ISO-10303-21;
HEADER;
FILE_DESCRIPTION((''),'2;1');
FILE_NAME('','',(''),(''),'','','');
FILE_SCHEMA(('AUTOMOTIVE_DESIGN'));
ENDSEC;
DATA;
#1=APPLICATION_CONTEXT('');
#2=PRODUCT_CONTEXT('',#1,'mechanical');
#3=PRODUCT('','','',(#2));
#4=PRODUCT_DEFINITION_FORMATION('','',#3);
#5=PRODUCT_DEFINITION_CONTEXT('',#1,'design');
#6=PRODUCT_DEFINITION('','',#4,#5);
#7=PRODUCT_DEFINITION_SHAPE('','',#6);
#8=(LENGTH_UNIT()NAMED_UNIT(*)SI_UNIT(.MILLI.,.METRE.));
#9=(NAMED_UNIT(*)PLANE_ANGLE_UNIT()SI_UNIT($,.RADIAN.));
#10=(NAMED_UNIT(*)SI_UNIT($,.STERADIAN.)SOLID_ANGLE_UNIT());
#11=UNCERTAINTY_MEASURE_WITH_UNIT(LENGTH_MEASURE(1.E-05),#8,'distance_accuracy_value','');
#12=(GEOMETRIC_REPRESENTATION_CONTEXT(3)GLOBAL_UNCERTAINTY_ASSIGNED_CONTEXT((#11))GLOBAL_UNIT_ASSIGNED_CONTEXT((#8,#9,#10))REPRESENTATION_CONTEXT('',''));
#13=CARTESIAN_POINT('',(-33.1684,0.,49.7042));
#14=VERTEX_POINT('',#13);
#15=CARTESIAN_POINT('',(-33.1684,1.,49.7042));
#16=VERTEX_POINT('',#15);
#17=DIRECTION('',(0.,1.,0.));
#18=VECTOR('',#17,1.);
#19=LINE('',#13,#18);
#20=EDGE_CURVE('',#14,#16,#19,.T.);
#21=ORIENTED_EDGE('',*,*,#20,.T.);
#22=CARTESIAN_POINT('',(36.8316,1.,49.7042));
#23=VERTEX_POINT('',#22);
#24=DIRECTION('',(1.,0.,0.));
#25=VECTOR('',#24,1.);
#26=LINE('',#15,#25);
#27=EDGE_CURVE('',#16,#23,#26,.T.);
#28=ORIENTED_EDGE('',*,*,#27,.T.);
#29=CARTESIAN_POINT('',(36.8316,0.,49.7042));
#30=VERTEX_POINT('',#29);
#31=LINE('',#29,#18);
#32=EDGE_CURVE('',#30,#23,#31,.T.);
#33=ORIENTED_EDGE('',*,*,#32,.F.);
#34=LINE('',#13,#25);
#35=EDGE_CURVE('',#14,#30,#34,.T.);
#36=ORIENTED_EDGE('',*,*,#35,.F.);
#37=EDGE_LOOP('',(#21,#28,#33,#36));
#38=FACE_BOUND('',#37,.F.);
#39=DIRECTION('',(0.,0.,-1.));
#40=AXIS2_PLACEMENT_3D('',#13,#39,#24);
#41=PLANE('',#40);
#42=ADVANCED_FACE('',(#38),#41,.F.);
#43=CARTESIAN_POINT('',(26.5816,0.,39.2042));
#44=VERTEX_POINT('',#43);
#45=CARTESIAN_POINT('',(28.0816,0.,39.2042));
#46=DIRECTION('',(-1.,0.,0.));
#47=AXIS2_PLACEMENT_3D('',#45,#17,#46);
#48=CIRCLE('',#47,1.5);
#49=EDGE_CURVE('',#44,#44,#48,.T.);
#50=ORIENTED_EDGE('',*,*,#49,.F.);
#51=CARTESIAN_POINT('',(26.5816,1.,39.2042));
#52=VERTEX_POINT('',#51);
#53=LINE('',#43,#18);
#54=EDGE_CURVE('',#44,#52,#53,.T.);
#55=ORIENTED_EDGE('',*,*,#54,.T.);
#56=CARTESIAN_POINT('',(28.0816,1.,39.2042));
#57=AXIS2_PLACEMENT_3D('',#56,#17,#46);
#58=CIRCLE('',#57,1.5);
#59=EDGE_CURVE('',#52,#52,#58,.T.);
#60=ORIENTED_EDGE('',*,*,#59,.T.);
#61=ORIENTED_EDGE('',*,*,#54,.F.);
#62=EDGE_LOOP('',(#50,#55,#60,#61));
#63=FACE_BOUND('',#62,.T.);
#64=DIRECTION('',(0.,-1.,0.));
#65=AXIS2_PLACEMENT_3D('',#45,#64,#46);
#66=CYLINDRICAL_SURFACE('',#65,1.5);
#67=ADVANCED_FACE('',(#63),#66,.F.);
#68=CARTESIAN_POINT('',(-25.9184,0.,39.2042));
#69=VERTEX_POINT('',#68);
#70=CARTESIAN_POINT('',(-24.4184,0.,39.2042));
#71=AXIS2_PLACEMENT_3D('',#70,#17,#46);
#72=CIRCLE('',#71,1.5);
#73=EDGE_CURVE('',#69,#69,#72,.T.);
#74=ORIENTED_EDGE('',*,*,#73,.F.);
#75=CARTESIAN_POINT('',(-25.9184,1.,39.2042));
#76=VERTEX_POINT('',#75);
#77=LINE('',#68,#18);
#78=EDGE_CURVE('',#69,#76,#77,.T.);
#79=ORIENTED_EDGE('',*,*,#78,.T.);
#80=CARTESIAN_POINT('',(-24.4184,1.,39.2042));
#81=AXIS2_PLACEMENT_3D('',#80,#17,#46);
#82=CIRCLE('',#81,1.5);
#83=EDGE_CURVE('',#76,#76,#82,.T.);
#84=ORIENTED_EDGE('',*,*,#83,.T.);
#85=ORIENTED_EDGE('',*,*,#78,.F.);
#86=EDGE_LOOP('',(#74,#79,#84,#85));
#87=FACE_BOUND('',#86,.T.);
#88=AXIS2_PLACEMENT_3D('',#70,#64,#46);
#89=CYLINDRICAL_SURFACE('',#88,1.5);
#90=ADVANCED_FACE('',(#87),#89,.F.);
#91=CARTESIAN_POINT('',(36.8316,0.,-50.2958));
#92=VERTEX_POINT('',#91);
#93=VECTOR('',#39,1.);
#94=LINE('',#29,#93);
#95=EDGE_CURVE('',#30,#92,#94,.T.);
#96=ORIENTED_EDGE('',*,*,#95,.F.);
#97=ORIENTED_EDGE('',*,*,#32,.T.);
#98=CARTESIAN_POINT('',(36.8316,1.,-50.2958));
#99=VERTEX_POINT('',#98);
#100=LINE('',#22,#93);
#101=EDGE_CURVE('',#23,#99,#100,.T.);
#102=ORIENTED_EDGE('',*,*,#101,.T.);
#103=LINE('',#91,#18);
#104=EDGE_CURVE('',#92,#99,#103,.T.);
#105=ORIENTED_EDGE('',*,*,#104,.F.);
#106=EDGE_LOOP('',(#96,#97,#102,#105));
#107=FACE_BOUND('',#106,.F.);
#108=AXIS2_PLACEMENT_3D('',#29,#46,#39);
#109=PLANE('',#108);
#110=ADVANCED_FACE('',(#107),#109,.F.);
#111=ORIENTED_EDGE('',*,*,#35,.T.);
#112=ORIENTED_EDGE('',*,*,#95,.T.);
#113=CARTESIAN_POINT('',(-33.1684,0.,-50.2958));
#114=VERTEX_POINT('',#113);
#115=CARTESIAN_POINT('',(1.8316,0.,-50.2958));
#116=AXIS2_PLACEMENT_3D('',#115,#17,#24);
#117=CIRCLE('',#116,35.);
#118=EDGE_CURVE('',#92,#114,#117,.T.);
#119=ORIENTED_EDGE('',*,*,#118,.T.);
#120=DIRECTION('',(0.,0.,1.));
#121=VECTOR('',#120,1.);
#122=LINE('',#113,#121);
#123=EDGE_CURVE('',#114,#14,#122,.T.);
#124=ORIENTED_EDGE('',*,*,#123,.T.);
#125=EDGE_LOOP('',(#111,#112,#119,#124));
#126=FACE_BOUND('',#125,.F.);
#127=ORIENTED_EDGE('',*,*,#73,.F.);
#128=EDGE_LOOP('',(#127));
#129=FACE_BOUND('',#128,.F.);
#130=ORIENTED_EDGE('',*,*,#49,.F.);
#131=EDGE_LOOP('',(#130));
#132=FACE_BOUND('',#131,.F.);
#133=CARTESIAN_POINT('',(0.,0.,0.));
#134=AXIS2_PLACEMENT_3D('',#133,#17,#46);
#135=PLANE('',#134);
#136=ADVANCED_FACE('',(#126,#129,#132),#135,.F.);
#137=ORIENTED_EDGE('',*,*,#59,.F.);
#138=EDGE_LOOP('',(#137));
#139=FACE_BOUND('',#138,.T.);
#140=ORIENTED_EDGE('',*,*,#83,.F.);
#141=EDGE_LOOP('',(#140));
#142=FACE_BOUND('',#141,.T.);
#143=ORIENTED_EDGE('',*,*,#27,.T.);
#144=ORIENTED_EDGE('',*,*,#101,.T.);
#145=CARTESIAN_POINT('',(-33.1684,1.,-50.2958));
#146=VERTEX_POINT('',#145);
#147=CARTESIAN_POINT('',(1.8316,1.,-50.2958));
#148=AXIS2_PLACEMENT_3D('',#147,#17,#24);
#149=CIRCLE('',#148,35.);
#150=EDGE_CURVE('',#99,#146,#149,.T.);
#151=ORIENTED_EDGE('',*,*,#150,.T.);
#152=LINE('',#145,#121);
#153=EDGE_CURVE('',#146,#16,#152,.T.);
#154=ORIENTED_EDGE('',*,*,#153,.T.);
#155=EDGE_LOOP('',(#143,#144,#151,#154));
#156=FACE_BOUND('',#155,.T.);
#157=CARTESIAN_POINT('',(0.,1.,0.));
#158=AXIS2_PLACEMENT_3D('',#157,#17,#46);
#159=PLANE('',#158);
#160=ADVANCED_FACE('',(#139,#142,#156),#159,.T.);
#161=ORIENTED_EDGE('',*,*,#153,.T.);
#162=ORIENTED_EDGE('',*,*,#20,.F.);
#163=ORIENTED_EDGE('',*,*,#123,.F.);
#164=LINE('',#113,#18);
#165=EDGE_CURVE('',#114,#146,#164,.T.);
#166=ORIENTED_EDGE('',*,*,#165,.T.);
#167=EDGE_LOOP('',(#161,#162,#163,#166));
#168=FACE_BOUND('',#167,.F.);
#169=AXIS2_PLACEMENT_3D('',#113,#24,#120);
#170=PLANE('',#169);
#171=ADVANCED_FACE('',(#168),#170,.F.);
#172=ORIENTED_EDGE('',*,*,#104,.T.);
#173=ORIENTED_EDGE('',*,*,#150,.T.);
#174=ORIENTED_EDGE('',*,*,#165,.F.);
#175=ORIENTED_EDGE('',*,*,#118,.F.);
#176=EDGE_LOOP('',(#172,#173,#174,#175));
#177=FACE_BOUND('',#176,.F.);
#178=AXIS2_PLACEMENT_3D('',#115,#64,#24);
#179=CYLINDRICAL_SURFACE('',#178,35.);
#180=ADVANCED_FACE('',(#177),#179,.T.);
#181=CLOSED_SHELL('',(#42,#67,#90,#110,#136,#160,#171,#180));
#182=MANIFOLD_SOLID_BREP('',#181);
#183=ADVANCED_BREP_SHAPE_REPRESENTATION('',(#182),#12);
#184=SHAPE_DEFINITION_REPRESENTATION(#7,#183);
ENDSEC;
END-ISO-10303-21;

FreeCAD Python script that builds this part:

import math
import FreeCAD as App
import Part
import Sketcher
from FreeCAD import Vector

doc = App.newDocument("Part")
body = doc.addObject("PartDesign::Body", "Body")

# Sketch on XZ plane
sketch1 = body.newObject("Sketcher::SketchObject", "Sketch")
sketch1.AttachmentSupport = (doc.getObject("XZ_Plane"), [""])
sketch1.MapMode = "FlatFace"
sketch1.addGeometry([
    Part.LineSegment(Vector(-33.2, -50.3, 0), Vector(-33.2, 49.7, 0)),  # 0
    Part.LineSegment(Vector(-33.2, 49.7, 0), Vector(36.8, 49.7, 0)),  # 1
    Part.LineSegment(Vector(36.8, 49.7, 0), Vector(36.8, -50.3, 0)),  # 2
    Part.ArcOfCircle(Part.Circle(Vector(1.8, -50.3, 0), Vector(0, 0, 1), 35), math.radians(180), math.radians(360)),  # 3
    Part.Circle(Vector(28.1, 39.2, 0), Vector(0, 0, 1), 1.5),  # 4
    Part.Circle(Vector(-24.4, 39.2, 0), Vector(0, 0, 1), 1.5),  # 5
], False)
sketch1.addConstraint([
    Sketcher.Constraint("Coincident", 0, 2, 1, 1),
    Sketcher.Constraint("Coincident", 1, 2, 2, 1),
    Sketcher.Constraint("Tangent", 2, 2, 3, 2),
    Sketcher.Constraint("Tangent", 3, 1, 0, 1),
    Sketcher.Constraint("Vertical", 0),
    Sketcher.Constraint("Horizontal", 1),
    Sketcher.Constraint("Vertical", 2),
    Sketcher.Constraint("Equal", 4, 5),
    Sketcher.Constraint("Horizontal", 4, 3, 5, 3),
    Sketcher.Constraint("Diameter", 4, 3.0),
    Sketcher.Constraint("Radius", 3, 35.0),
    Sketcher.Constraint("DistanceY", 0, 1, 0, 2, 100.0),
    Sketcher.Constraint("DistanceX", 5, 3, 4, 3, 52.5),
    Sketcher.Constraint("DistanceY", 5, 3, 0, 2, 10.5),
    Sketcher.Constraint("DistanceX", 3, 3, 4, 3, 26.25),
    Sketcher.Constraint("DistanceX", -1, 1, 3, 3, 1.8316),
    Sketcher.Constraint("DistanceY", 3, 3, -1, 1, 50.2958),
])
pad1 = body.newObject("PartDesign::Pad", "Pad")
pad1.Profile = sketch1
pad1.Length = 1
pad1.Reversed = True

doc.recompute()
